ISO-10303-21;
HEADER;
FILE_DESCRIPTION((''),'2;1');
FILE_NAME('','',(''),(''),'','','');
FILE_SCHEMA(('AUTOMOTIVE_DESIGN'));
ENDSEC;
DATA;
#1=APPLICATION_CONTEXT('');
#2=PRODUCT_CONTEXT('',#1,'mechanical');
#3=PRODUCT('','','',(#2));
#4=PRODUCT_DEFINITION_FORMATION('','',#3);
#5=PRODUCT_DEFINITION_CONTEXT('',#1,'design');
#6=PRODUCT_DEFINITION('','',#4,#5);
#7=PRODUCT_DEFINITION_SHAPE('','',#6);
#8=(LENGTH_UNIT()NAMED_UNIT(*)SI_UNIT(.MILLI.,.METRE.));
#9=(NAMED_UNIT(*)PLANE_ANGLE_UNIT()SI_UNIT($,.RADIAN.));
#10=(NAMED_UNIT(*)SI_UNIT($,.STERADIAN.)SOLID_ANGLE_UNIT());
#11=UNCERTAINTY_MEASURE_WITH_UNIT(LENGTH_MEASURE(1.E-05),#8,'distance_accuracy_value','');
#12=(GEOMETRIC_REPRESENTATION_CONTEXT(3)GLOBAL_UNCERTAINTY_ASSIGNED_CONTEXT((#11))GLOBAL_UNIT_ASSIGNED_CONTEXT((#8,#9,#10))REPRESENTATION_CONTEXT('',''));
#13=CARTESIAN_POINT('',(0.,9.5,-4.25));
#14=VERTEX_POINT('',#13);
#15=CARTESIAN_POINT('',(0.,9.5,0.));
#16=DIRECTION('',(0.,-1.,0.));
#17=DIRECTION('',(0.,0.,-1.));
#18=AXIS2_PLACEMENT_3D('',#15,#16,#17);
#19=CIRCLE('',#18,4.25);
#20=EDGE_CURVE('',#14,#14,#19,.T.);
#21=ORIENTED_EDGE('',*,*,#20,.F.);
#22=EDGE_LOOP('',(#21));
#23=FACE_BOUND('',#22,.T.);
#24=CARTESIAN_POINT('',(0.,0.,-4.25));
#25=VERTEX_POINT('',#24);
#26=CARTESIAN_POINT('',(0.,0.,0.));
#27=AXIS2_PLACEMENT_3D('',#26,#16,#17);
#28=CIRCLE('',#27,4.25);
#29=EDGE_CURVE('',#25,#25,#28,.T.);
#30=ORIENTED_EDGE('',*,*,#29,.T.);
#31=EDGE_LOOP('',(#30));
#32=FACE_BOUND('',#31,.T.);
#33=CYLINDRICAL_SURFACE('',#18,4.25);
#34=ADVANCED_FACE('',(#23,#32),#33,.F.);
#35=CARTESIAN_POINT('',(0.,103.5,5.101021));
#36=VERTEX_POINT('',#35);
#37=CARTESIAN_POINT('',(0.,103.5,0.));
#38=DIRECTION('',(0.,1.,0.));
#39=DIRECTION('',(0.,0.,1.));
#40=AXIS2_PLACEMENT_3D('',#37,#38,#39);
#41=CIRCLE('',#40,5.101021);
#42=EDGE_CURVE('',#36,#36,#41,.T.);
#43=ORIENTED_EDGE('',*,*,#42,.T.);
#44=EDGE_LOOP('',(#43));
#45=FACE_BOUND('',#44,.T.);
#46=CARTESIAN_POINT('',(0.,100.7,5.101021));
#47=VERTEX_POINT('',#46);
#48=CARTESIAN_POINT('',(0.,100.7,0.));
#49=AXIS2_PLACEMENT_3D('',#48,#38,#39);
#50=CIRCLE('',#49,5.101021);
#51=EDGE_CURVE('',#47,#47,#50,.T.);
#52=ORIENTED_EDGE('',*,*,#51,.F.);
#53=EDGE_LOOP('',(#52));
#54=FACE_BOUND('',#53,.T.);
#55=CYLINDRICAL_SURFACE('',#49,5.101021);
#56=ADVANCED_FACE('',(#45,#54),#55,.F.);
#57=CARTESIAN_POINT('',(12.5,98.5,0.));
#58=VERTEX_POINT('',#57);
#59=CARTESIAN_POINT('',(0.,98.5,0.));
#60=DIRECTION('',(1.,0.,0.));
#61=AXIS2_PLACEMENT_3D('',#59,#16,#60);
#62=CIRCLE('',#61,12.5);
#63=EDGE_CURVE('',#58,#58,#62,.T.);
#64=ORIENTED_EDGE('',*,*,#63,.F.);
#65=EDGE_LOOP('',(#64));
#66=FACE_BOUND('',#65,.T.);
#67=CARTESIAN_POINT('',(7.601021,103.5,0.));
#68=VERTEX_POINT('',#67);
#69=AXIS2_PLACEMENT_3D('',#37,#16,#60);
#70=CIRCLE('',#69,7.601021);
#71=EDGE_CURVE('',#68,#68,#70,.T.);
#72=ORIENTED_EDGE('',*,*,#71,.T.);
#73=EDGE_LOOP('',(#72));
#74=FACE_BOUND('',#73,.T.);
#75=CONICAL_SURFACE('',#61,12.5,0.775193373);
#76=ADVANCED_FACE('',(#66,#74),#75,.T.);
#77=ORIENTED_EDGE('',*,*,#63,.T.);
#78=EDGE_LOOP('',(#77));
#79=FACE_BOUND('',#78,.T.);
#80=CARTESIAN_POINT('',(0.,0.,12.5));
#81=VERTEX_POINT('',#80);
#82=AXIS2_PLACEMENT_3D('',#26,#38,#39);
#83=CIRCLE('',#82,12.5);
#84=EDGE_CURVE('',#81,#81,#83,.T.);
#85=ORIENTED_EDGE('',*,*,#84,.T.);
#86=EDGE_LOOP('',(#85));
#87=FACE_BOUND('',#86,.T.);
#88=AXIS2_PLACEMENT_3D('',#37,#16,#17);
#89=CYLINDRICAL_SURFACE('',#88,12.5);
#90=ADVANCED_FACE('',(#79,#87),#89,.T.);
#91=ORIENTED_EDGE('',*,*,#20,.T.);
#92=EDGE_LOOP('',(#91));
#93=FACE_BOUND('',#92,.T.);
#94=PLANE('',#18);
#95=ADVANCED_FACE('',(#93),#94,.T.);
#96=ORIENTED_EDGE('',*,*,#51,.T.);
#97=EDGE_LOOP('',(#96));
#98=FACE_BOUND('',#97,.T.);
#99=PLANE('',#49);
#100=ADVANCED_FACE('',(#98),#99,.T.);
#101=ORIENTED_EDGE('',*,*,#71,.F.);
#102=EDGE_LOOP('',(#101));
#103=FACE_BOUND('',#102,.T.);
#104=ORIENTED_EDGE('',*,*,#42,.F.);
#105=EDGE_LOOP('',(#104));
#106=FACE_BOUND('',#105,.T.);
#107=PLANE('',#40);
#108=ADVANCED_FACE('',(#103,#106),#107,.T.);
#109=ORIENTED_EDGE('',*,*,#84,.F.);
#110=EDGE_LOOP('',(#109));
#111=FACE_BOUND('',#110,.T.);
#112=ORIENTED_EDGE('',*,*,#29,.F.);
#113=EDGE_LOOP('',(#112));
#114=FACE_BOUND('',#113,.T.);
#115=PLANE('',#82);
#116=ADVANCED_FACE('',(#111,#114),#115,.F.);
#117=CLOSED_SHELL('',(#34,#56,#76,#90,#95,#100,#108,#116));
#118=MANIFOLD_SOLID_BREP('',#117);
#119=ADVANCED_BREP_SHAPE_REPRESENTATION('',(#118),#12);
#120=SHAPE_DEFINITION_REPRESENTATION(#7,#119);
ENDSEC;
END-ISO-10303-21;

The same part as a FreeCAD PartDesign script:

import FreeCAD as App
import Part
import Sketcher

V = App.Vector


def add_polygon(sketch, points):
    """Adds a closed chain of lines whose ends are joined by coincident constraints."""
    first, n = sketch.GeometryCount, len(points)
    for a, b in zip(points, points[1:] + points[:1]):
        sketch.addGeometry(Part.LineSegment(App.Vector(*a, 0), App.Vector(*b, 0)), False)
    for i in range(n):
        sketch.addConstraint(Sketcher.Constraint("Coincident", first + i, 2, first + (i + 1) % n, 1))

doc = App.newDocument("Part")
body = doc.addObject("PartDesign::Body", "Body")

# Sketch on XZ plane
sketch1 = body.newObject("Sketcher::SketchObject", "Sketch")
sketch1.AttachmentSupport = (doc.getObject("XZ_Plane"), [""])
sketch1.MapMode = "FlatFace"
sketch1.addGeometry(Part.Circle(V(0, 0, 0), V(0, 0, 1), 12.5), False)
sketch1.addConstraint([
    Sketcher.Constraint("Coincident", 0, 3, -1, 1),
    Sketcher.Constraint("Diameter", 0, 25.0),
])
pad1 = body.newObject("PartDesign::Pad", "Pad")
pad1.Profile = sketch1
pad1.Length = 103.5
pad1.Reversed = True

# Sketch on YZ plane
sketch2 = body.newObject("Sketcher::SketchObject", "Sketch001")
sketch2.AttachmentSupport = (doc.getObject("YZ_Plane"), [""])
sketch2.MapMode = "FlatFace"
add_polygon(sketch2, [(98.5, 12.5), (103.5, 7.601021), (103.5, 12.5)])  # lines 0-2
sketch2.addConstraint([
    Sketcher.Constraint("Vertical", 1),
    Sketcher.Constraint("Horizontal", 2),
    Sketcher.Constraint("DistanceX", 2, 2, 2, 1, 5.0),
    Sketcher.Constraint("Distance", 0, 7.0),
    Sketcher.Constraint("DistanceX", -1, 1, 0, 2, 103.5),
    Sketcher.Constraint("DistanceY", -1, 1, 1, 2, 12.5),
])
groove = body.newObject("PartDesign::Groove", "Groove")
groove.Profile = sketch2
groove.ReferenceAxis = (sketch2, ["H_Axis"])
groove.Angle = 360

# Sketch on XZ plane
sketch3 = body.newObject("Sketcher::SketchObject", "Sketch002")
sketch3.AttachmentSupport = (doc.getObject("XZ_Plane"), [""])
sketch3.MapMode = "FlatFace"
sketch3.AttachmentOffset = App.Placement(V(0, 0, -103.5), App.Rotation())
sketch3.addGeometry(Part.Circle(V(0, 0, 0), V(0, 0, 1), 5.101021), False)
sketch3.addConstraint([
    Sketcher.Constraint("Coincident", 0, 3, -1, 1),
    Sketcher.Constraint("Diameter", 0, 10.202041),
])
pocket1 = body.newObject("PartDesign::Pocket", "Pocket")
pocket1.Profile = sketch3
pocket1.Length = 2.8
pocket1.Reversed = True

# Sketch on XZ plane
sketch4 = body.newObject("Sketcher::SketchObject", "Sketch003")
sketch4.AttachmentSupport = (doc.getObject("XZ_Plane"), [""])
sketch4.MapMode = "FlatFace"
sketch4.addGeometry(Part.Circle(V(0, 0, 0), V(0, 0, 1), 4.25), False)
sketch4.addConstraint([
    Sketcher.Constraint("Coincident", 0, 3, -1, 1),
    Sketcher.Constraint("Diameter", 0, 8.5),
])
pocket2 = body.newObject("PartDesign::Pocket", "Pocket001")
pocket2.Profile = sketch4
pocket2.Length = 9.5

doc.recompute()
